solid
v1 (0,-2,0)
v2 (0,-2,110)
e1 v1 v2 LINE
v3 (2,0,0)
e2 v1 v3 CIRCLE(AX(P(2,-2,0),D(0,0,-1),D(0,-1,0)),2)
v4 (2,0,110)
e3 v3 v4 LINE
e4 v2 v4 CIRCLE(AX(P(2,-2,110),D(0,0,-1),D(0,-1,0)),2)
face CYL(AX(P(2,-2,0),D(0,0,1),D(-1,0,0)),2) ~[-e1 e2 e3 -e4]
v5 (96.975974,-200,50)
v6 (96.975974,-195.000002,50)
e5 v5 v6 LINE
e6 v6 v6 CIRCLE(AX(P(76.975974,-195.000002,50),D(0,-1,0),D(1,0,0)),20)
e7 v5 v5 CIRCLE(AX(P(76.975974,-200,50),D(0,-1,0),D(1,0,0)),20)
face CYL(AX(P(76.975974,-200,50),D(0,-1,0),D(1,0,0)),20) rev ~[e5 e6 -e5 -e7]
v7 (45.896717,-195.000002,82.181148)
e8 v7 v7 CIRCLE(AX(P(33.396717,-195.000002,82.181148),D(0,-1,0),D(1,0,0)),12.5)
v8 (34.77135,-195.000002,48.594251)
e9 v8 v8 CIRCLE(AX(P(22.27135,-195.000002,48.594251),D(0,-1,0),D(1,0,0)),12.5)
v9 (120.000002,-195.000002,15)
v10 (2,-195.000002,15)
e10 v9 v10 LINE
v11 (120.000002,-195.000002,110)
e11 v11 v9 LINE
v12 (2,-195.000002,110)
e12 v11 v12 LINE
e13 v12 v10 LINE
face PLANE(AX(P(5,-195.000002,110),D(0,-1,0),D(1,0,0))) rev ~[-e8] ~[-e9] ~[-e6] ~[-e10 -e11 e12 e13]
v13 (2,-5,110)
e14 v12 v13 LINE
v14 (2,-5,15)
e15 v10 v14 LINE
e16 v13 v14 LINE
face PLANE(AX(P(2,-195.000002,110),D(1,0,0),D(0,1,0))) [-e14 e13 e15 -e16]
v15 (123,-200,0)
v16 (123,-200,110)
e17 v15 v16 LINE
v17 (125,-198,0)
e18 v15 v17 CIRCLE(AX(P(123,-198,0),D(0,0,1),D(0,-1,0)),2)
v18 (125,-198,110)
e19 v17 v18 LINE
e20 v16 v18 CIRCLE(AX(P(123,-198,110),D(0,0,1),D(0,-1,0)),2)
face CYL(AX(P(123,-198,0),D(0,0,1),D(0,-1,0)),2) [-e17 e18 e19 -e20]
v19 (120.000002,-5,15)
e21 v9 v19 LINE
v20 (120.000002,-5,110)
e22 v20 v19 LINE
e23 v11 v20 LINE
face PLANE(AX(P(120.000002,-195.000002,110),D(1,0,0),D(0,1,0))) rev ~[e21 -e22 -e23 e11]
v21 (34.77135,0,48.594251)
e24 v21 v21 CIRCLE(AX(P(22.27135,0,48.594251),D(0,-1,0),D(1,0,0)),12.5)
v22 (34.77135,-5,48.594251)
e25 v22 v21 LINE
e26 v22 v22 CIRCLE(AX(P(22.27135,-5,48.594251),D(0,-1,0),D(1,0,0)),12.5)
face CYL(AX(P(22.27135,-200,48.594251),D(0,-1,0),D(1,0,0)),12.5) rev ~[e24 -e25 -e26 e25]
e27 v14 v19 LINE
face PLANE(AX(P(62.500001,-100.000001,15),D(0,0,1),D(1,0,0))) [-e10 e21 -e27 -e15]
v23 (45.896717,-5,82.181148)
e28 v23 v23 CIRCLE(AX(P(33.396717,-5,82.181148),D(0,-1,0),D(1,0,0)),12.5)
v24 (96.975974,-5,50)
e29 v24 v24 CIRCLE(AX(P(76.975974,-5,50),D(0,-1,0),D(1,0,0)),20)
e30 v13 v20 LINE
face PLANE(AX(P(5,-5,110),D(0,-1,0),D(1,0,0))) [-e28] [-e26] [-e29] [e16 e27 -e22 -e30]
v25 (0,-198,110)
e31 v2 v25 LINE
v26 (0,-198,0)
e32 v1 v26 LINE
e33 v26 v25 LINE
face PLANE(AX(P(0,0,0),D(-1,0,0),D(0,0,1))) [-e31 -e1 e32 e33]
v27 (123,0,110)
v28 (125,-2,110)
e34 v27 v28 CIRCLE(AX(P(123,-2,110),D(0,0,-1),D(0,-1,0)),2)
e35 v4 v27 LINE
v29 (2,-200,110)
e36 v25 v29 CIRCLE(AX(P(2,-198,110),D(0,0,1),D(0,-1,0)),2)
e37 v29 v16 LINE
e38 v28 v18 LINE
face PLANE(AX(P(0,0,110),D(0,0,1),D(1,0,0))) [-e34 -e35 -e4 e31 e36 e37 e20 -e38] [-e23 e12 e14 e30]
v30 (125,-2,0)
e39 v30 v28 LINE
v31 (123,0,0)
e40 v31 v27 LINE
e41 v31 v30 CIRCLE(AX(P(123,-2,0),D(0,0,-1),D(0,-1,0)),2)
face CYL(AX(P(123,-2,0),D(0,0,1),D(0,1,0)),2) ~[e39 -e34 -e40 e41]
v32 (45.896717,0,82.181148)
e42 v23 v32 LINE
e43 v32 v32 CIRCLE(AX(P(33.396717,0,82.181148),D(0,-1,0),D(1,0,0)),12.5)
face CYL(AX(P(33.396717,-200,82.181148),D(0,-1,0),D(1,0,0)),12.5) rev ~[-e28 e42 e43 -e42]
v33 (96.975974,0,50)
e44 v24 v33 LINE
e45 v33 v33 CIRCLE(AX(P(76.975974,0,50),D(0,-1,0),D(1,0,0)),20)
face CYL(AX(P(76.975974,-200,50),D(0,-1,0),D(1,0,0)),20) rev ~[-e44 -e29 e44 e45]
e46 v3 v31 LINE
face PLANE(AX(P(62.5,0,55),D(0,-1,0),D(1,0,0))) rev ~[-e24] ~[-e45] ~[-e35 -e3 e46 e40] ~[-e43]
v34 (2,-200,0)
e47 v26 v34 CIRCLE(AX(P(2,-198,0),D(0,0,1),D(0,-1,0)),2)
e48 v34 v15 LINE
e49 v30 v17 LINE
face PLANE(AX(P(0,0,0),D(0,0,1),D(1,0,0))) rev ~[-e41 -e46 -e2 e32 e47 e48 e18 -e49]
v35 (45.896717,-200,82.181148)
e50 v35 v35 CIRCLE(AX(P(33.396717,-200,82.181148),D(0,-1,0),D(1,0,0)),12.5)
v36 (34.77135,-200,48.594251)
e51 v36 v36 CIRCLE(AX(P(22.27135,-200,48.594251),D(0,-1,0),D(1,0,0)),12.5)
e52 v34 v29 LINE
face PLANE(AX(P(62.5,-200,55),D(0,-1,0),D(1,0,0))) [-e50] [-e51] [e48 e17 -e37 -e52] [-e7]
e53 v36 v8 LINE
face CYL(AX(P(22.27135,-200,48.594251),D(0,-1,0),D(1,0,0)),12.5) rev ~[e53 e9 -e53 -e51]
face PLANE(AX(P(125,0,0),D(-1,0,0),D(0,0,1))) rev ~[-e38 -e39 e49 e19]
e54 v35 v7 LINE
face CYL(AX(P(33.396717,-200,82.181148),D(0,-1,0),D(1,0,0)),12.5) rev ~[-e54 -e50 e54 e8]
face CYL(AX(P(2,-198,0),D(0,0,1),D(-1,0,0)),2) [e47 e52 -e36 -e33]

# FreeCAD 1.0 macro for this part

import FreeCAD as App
import Part
import Sketcher

V = App.Vector


def edges_at(feature, points):
    """Names of the edges that pass closest to the given points."""
    edges = feature.Shape.Edges
    near = lambda p: min(range(len(edges)), key=lambda i: edges[i].distToShape(Part.Vertex(*p))[0])
    return sorted({f"Edge{near(p) + 1}" for p in points})


def add_polygon(sketch, points):
    """Adds a closed chain of lines whose ends are joined by coincident constraints."""
    first, n = sketch.GeometryCount, len(points)
    for a, b in zip(points, points[1:] + points[:1]):
        sketch.addGeometry(Part.LineSegment(App.Vector(*a, 0), App.Vector(*b, 0)), False)
    for i in range(n):
        sketch.addConstraint(Sketcher.Constraint("Coincident", first + i, 2, first + (i + 1) % n, 1))

doc = App.newDocument("Part")
body = doc.addObject("PartDesign::Body", "Body")

sketch1 = body.newObject("Sketcher::SketchObject", "Sketch")
sketch1.AttachmentSupport = (doc.getObject("XZ_Plane"), [""])
sketch1.MapMode = "FlatFace"
add_polygon(sketch1, [(0, 110), (0, 0), (125, 0), (125, 110)])
sketch1.addConstraint([
    Sketcher.Constraint("Vertical", 0),
    Sketcher.Constraint("Horizontal", 1),
    Sketcher.Constraint("Vertical", 2),
    Sketcher.Constraint("Horizontal", 3),
    Sketcher.Constraint("Coincident", 0, 2, -1, 1),
    Sketcher.Constraint("DistanceX", 1, 1, 1, 2, 125.0),
    Sketcher.Constraint("DistanceY", 0, 2, 0, 1, 110.0),
])
pad1 = body.newObject("PartDesign::Pad", "Pad")
pad1.Profile = sketch1
pad1.Length = 200

sketch2 = body.newObject("Sketcher::SketchObject", "Sketch001")
sketch2.AttachmentSupport = (doc.getObject("XY_Plane"), [""])
sketch2.MapMode = "FlatFace"
sketch2.AttachmentOffset = App.Placement(V(0, 0, 110), App.Rotation())
add_polygon(sketch2, [(5, -5), (5, -195), (120, -195), (120, -5)])
sketch2.addConstraint([
    Sketcher.Constraint("Vertical", 0),
    Sketcher.Constraint("Horizontal", 1),
    Sketcher.Constraint("Vertical", 2),
    Sketcher.Constraint("Horizontal", 3),
    Sketcher.Constraint("DistanceX", 1, 1, 1, 2, 115.000002),
    Sketcher.Constraint("DistanceY", 0, 2, 0, 1, 190.000002),
    Sketcher.Constraint("DistanceX", -1, 1, 0, 2, 5.0),
    Sketcher.Constraint("DistanceY", 0, 2, -1, 1, 195.000002),
])
pocket1 = body.newObject("PartDesign::Pocket", "Pocket")
pocket1.Profile = sketch2
pocket1.Length = 95
doc.recompute()

fillet = body.newObject("PartDesign::Fillet", "Fillet")
fillet.Base = (pocket1, edges_at(pocket1, [
    (125, 0, 55),
    (0, 0, 55),
    (125, -200, 55),
    (0, -200, 55),
]))
fillet.Radius = 2

sketch3 = body.newObject("Sketcher::SketchObject", "Sketch002")
sketch3.AttachmentSupport = (doc.getObject("XZ_Plane"), [""])
sketch3.MapMode = "FlatFace"
sketch3.AttachmentOffset = App.Placement(V(0, 0, 200), App.Rotation())
sketch3.addGeometry(Part.Circle(V(77, 50, 0), V(0, 0, 1), 20), False)
sketch3.addConstraint([
    Sketcher.Constraint("Diameter", 0, 40.0),
    Sketcher.Constraint("DistanceY", -1, 1, 0, 3, 50.0),
    Sketcher.Constraint("DistanceX", -1, 1, 0, 3, 76.975974),
])
pocket2 = body.newObject("PartDesign::Pocket", "Pocket001")
pocket2.Profile = sketch3
pocket2.Type = "ThroughAll"

sketch4 = body.newObject("Sketcher::SketchObject", "Sketch003")
sketch4.AttachmentSupport = (doc.getObject("XZ_Plane"), [""])
sketch4.MapMode = "FlatFace"
sketch4.AttachmentOffset = App.Placement(V(0, 0, 200), App.Rotation())
sketch4.addGeometry([
    Part.Circle(V(22, 49, 0), V(0, 0, 1), 12),
    Part.Circle(V(33, 82, 0), V(0, 0, 1), 12),
], False)
sketch4.addConstraint([
    Sketcher.Constraint("Equal", 0, 1),
    Sketcher.Constraint("Diameter", 0, 25.0),
    Sketcher.Constraint("DistanceX", -1, 1, 0, 3, 22.27135),
    Sketcher.Constraint("DistanceY", -1, 1, 0, 3, 48.594251),
    Sketcher.Constraint("DistanceX", -1, 1, 1, 3, 33.396717),
    Sketcher.Constraint("DistanceY", -1, 1, 1, 3, 82.181148),
])
pocket3 = body.newObject("PartDesign::Pocket", "Pocket002")
pocket3.Profile = sketch4
pocket3.Type = "ThroughAll"

sketch5 = body.newObject("Sketcher::SketchObject", "Sketch004")
sketch5.AttachmentSupport = (doc.getObject("XY_Plane"), [""])
sketch5.MapMode = "FlatFace"
sketch5.AttachmentOffset = App.Placement(V(0, 0, 110), App.Rotation())
add_polygon(sketch5, [(2, -5), (2, -195), (5, -195), (5, -5)])
sketch5.addConstraint([
    Sketcher.Constraint("Vertical", 0),
    Sketcher.Constraint("Horizontal", 1),
    Sketcher.Constraint("Vertical", 2),
    Sketcher.Constraint("Horizontal", 3),
    Sketcher.Constraint("DistanceX", 1, 1, 1, 2, 3.0),
    Sketcher.Constraint("DistanceY", 0, 2, 0, 1, 190.000002),
    Sketcher.Constraint("DistanceX", -1, 1, 0, 2, 2.0),
    Sketcher.Constraint("DistanceY", 0, 2, -1, 1, 195.000002),
])
pocket4 = body.newObject("PartDesign::Pocket", "Pocket003")
pocket4.Profile = sketch5
pocket4.Length = 95

doc.recompute()
